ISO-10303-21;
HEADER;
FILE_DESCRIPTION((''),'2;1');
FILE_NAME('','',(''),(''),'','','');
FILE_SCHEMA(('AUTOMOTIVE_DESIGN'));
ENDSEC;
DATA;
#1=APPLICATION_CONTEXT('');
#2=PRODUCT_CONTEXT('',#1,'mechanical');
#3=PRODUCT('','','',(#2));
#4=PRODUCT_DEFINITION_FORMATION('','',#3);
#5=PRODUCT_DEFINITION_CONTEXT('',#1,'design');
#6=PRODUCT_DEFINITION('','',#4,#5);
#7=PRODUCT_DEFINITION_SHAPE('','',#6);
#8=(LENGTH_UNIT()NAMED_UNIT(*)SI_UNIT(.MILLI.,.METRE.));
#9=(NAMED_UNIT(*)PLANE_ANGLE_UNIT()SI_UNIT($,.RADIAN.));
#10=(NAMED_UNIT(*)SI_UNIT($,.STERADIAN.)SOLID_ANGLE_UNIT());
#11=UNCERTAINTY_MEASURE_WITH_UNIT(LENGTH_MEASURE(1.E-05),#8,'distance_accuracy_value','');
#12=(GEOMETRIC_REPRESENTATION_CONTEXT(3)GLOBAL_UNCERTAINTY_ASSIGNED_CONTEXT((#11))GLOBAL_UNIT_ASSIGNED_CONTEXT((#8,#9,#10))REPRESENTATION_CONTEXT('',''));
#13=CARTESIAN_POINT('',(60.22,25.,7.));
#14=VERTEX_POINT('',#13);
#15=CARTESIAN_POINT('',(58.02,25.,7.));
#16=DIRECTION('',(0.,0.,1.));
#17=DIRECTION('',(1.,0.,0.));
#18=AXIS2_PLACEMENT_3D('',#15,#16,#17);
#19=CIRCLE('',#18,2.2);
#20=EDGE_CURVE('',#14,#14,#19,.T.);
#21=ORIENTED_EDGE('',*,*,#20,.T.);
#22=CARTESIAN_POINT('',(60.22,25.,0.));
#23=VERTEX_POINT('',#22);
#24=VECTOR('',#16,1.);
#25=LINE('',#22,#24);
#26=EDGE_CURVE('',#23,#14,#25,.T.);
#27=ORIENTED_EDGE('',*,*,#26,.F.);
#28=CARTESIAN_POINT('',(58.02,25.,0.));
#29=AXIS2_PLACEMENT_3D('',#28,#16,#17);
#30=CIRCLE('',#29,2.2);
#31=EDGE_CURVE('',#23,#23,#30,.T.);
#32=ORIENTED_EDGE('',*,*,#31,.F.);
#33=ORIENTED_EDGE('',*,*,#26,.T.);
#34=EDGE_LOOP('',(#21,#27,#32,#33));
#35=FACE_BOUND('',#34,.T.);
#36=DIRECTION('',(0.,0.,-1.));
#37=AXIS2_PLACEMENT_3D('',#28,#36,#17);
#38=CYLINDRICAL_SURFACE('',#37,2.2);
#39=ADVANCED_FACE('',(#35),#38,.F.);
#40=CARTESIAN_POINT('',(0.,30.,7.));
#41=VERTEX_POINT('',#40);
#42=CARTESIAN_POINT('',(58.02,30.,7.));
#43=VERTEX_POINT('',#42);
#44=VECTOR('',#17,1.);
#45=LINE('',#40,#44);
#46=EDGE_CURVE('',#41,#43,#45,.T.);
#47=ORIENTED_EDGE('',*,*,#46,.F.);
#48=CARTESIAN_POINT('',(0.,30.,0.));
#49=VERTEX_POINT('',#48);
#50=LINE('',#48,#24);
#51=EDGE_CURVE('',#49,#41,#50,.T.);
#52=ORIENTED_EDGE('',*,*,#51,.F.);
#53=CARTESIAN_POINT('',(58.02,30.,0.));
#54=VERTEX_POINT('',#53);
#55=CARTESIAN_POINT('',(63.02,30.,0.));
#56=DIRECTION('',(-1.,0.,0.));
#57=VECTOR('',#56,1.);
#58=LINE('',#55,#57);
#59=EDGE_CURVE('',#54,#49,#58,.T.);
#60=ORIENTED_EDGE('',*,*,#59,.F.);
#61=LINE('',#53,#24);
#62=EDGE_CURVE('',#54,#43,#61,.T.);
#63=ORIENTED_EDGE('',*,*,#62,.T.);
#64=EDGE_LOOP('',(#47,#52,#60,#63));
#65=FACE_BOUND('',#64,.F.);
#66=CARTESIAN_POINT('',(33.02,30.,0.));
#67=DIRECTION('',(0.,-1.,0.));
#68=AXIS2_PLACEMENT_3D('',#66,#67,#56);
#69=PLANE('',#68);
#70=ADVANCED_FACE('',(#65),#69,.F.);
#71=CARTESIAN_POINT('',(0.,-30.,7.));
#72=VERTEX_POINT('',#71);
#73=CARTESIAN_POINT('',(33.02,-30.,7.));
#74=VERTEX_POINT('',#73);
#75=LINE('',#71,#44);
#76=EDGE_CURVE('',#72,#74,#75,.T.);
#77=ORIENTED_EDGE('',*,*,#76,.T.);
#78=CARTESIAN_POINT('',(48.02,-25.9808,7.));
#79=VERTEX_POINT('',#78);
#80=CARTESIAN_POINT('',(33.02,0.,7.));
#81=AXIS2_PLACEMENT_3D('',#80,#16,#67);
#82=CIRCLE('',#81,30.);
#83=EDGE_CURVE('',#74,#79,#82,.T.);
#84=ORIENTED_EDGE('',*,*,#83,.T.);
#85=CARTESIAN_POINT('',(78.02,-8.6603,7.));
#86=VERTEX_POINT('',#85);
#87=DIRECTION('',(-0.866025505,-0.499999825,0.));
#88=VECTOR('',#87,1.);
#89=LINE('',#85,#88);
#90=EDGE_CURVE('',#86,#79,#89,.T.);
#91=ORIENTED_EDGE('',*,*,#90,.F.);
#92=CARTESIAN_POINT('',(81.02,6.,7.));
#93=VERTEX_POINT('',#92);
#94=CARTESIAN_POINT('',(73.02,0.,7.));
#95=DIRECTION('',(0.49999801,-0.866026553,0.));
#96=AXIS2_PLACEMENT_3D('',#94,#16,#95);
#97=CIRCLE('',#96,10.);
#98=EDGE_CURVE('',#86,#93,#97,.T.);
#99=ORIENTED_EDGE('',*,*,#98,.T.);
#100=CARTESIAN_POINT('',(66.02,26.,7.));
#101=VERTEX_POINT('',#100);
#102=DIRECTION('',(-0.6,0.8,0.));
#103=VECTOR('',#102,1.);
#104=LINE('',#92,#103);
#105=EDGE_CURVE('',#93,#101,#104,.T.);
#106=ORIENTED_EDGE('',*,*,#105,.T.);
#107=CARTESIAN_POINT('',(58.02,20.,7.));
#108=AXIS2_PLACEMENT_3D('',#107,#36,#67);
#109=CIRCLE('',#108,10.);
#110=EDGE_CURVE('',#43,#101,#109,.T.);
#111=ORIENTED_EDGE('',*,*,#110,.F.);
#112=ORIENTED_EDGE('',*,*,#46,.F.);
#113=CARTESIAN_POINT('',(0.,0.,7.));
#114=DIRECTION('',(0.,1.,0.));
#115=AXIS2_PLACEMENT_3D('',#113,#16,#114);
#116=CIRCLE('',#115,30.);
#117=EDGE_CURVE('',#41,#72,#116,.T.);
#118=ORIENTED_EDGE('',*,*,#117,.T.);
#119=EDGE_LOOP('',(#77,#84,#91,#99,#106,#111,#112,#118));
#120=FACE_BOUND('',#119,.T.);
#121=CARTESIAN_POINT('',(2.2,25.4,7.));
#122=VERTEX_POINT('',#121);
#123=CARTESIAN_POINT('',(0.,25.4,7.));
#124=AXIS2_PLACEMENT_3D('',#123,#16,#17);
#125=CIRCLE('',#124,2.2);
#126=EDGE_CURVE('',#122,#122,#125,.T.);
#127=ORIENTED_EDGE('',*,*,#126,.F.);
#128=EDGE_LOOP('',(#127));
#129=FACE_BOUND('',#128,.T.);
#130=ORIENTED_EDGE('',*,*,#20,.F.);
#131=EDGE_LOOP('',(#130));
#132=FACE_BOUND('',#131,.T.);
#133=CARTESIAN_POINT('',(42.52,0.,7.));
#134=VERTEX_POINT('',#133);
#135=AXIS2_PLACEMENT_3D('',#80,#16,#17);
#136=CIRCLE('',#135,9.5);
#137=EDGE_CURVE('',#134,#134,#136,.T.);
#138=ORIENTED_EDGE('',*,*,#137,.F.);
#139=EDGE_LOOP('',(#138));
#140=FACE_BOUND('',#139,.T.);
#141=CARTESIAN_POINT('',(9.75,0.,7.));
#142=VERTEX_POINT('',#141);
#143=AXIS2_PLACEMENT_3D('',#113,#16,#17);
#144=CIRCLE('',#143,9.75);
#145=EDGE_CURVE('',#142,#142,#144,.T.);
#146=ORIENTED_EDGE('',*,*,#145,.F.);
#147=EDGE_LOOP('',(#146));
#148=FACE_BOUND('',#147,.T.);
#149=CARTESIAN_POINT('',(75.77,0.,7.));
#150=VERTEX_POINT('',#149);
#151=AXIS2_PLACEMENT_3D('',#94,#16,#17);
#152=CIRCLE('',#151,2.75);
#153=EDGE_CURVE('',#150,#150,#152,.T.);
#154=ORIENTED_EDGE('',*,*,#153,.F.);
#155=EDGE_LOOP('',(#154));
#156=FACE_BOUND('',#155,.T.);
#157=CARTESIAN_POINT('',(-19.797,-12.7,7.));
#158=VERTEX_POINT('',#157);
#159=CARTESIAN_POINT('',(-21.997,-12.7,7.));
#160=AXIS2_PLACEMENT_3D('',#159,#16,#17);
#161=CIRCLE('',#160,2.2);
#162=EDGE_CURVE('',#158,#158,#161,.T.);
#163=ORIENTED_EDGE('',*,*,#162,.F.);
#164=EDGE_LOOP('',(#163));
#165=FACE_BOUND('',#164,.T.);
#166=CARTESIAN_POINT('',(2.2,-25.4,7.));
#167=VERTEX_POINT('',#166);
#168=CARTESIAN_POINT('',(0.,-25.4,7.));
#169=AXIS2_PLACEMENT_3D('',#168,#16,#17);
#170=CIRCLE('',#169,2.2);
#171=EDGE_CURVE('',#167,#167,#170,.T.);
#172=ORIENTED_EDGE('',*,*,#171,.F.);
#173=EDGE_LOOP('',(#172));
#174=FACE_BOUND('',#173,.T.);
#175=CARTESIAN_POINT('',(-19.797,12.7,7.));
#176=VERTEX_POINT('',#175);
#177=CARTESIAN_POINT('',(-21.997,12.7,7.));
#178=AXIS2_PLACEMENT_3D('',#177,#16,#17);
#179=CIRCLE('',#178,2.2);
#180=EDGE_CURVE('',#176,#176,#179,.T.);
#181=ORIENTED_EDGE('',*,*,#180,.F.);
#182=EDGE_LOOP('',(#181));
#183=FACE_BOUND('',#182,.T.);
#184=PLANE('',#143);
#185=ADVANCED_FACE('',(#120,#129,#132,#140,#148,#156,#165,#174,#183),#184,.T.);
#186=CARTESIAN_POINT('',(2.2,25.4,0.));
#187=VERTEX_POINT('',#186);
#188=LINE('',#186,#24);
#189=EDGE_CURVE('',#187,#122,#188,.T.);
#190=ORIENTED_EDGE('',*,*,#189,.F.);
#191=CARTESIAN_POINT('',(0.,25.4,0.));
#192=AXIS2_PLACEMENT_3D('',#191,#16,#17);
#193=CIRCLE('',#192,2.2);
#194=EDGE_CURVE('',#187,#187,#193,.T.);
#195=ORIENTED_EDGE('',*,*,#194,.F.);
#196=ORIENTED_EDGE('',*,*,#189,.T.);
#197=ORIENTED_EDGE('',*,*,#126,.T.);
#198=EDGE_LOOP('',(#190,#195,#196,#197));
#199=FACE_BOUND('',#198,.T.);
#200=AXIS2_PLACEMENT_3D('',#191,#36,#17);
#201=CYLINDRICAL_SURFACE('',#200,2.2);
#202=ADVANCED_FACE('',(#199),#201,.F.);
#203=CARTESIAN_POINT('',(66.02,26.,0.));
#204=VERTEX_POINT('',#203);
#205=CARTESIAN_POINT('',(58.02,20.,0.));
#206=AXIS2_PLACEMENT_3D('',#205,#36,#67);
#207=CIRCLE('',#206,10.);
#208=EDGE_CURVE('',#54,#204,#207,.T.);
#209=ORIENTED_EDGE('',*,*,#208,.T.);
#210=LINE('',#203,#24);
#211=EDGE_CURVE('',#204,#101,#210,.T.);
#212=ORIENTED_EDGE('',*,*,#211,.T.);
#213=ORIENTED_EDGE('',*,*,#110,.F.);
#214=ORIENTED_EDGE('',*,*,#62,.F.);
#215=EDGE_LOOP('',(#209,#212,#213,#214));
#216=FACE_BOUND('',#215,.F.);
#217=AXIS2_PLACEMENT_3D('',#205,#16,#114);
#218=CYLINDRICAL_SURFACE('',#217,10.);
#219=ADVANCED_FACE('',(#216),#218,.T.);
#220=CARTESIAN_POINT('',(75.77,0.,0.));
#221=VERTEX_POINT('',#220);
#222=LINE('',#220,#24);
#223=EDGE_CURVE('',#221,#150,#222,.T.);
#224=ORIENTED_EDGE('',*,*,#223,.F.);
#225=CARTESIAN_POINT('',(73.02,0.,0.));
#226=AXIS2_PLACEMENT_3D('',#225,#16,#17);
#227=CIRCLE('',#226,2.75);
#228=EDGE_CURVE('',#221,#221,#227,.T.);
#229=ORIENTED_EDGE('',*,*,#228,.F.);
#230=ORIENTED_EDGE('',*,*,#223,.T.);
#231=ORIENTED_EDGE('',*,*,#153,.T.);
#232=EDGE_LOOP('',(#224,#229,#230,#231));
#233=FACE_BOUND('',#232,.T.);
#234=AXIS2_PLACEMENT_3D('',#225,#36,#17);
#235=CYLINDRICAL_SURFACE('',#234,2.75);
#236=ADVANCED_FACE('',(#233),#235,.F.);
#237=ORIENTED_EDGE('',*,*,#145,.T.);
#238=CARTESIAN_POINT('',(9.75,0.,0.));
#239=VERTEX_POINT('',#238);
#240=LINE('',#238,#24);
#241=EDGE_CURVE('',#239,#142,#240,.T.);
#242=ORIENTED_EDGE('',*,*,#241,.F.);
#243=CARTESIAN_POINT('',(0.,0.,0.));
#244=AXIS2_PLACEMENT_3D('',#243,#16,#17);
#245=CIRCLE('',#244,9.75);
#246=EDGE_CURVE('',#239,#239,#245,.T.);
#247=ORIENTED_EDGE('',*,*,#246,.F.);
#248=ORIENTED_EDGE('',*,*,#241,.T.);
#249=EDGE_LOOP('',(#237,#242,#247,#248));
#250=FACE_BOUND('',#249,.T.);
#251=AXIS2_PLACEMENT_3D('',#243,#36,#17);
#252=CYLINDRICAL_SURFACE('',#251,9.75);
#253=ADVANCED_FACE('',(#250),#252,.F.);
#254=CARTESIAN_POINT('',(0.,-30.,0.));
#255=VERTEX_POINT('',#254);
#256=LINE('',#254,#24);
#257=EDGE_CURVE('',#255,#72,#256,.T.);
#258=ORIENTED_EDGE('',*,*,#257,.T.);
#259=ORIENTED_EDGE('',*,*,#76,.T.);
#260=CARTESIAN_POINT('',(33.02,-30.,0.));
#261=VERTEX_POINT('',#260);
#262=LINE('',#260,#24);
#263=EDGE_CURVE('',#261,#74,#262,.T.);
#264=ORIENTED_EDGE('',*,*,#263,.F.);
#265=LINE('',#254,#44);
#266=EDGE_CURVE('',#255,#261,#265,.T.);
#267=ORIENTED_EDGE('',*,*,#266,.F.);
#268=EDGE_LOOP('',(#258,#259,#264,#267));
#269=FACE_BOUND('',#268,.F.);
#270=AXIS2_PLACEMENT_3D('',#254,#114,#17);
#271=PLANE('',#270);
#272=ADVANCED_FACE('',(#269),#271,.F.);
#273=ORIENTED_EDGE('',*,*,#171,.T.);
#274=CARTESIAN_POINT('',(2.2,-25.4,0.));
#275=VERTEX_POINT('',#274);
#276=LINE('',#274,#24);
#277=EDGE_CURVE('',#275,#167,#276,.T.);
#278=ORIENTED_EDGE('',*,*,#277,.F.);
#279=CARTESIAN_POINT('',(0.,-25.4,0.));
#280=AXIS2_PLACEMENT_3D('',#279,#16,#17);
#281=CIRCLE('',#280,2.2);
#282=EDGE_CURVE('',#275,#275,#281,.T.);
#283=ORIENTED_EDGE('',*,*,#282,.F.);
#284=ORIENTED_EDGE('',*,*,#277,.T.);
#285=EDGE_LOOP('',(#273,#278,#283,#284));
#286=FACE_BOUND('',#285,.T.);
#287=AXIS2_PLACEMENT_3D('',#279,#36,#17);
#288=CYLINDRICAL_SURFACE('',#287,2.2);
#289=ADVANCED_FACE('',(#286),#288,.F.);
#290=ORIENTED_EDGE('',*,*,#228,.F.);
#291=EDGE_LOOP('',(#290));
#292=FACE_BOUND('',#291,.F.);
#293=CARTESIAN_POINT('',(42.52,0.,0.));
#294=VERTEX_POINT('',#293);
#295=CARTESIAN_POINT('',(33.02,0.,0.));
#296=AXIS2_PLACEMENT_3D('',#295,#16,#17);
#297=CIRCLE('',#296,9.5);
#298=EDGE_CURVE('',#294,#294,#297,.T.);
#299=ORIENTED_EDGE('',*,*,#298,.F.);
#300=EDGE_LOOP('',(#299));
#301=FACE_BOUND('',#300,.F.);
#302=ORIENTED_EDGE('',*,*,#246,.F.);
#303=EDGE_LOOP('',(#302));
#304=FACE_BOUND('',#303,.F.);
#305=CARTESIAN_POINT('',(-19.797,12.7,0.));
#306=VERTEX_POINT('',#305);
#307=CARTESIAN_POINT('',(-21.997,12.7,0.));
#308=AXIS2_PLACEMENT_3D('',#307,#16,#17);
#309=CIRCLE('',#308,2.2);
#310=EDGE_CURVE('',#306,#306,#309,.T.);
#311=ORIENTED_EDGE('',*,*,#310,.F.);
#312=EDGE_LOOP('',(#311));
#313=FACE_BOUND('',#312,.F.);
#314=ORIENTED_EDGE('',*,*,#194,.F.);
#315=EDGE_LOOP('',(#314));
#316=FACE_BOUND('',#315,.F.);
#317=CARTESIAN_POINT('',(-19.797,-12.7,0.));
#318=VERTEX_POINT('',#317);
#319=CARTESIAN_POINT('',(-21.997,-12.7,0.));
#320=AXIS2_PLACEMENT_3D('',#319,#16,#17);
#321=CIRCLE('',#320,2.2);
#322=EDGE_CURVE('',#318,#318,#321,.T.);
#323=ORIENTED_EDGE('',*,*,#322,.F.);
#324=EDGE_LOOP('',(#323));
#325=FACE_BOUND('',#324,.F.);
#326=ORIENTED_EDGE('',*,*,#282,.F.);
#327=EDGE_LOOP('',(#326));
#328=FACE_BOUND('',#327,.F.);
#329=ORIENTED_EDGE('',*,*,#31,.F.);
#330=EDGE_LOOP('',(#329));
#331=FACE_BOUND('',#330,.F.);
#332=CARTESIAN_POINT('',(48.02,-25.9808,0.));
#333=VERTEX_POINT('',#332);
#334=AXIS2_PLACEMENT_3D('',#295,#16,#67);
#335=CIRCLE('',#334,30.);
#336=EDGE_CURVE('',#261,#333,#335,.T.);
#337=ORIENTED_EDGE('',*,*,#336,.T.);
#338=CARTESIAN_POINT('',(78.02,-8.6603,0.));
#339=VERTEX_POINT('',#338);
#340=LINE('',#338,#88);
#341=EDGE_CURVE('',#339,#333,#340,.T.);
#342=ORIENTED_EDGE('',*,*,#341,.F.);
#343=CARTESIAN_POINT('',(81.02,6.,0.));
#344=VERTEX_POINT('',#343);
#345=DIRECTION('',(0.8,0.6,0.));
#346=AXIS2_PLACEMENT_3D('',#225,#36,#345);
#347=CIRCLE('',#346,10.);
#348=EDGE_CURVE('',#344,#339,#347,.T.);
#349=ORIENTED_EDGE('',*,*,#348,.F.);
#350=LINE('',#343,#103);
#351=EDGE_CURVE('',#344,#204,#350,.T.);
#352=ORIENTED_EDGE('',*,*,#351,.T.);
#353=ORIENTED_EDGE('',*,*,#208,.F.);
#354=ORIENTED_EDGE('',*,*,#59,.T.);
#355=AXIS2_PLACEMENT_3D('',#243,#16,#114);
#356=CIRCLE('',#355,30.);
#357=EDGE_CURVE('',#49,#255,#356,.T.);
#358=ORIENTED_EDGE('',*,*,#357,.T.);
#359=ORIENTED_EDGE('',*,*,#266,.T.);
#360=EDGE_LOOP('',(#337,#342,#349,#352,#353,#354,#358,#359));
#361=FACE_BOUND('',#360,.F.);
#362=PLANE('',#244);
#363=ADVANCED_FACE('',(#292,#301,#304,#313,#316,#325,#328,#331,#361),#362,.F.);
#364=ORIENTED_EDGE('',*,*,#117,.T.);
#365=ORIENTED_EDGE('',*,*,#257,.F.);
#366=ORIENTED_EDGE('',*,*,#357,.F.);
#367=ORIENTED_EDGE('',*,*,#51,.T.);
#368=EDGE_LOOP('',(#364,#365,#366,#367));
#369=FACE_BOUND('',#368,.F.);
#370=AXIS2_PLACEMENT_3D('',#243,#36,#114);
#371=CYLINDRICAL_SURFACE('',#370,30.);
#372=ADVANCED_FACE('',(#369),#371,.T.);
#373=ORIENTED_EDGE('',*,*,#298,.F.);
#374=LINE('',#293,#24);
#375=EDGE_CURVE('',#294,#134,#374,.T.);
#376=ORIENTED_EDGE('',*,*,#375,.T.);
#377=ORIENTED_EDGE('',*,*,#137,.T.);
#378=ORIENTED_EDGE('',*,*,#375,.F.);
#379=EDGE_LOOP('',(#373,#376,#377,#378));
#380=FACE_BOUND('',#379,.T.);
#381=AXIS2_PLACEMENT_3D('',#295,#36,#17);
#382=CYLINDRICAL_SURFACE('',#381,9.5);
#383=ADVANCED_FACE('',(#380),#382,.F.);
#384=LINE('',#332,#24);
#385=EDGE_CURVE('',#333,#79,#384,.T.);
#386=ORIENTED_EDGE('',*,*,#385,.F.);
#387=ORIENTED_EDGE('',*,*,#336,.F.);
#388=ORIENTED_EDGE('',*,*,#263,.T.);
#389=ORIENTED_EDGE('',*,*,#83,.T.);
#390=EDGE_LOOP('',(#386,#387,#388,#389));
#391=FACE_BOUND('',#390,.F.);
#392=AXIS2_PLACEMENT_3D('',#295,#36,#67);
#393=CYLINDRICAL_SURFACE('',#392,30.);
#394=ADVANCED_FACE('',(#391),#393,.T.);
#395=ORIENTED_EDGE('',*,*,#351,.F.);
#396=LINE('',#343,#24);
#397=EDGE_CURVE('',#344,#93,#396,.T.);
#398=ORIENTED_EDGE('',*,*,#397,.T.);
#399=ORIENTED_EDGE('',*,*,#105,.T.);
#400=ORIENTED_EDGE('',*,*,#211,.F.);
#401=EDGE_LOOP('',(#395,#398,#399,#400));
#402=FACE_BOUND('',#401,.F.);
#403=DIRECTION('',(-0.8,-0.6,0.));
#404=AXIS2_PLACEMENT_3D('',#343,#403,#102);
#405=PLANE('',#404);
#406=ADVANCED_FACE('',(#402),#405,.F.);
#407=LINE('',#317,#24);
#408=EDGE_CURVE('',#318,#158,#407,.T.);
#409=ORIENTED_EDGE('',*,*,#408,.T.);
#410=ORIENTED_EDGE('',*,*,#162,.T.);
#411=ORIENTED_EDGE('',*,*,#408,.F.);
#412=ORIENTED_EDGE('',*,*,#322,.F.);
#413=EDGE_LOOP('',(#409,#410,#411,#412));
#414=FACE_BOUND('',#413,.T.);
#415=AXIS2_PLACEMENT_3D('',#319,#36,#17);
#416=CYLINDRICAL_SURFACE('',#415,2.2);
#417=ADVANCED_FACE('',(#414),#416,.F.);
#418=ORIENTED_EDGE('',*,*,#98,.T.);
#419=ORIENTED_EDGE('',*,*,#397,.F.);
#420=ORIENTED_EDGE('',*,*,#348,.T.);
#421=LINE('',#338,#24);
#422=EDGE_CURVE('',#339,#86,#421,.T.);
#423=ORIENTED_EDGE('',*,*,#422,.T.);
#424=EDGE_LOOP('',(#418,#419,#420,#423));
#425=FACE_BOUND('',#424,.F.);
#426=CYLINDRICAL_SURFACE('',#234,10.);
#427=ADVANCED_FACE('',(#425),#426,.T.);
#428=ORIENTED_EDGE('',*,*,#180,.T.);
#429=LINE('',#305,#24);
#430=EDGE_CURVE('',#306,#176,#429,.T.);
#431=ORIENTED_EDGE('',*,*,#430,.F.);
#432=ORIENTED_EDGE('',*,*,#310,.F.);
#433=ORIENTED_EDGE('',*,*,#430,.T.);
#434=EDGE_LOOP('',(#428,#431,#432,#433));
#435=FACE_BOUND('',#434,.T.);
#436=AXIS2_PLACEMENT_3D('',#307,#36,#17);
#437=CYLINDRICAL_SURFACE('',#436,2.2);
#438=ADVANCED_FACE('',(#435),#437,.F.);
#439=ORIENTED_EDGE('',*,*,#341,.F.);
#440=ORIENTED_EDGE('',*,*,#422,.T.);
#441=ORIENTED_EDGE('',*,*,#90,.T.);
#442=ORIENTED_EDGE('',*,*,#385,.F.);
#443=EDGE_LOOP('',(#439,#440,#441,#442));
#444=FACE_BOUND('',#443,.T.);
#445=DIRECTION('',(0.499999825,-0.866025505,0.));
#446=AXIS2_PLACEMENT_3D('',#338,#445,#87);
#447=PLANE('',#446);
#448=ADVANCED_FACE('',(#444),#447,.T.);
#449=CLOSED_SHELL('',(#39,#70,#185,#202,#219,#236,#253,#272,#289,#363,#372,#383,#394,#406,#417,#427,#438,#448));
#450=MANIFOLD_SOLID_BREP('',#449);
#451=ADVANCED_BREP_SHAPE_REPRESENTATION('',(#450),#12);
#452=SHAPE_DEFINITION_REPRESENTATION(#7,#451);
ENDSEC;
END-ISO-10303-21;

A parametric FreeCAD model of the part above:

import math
import FreeCAD as App
import Part
import Sketcher
from FreeCAD import Vector
Q = App.Units.Quantity


def edges_at(feature, points):
    """Names of the edges that pass closest to the given points."""
    edges = feature.Shape.Edges
    near = lambda p: min(range(len(edges)), key=lambda i: edges[i].distToShape(Part.Vertex(*p))[0])
    return sorted({f"Edge{near(p) + 1}" for p in points})

doc = App.newDocument("Part")
body = doc.addObject("PartDesign::Body", "Body")

sketch1 = body.newObject("Sketcher::SketchObject", "Sketch")
sketch1.AttachmentSupport = (doc.getObject("XY_Plane"), [""])
sketch1.MapMode = "FlatFace"
sketch1.addGeometry(Part.ArcOfCircle(Part.Circle(Vector(0, 0, 0), Vector(0, 0, 1), 30), math.radians(90), math.radians(270)), False)
sketch1.addGeometry(Part.LineSegment(Vector(0, -30, 0), Vector(33, -30, 0)), False)
sketch1.addGeometry(Part.ArcOfCircle(Part.Circle(Vector(33, 0, 0), Vector(0, 0, 1), 30), math.radians(-90), math.radians(-60)), False)
sketch1.addGeometry(Part.LineSegment(Vector(48, -26, 0), Vector(78, -8.7, 0)), False)
sketch1.addGeometry(Part.ArcOfCircle(Part.Circle(Vector(73, 0, 0), Vector(0, 0, 1), 10), math.radians(-60), math.radians(37)), False)
sketch1.addGeometry(Part.LineSegment(Vector(81, 6, 0), Vector(63, 30, 0)), False)
sketch1.addGeometry(Part.LineSegment(Vector(63, 30, 0), Vector(0, 30, 0)), False)
sketch1.addGeometry(Part.Circle(Vector(0, -25.4, 0), Vector(0, 0, 1), 2.2), False)
sketch1.addGeometry(Part.Circle(Vector(-22, -12.7, 0), Vector(0, 0, 1), 2.2), False)
sketch1.addGeometry(Part.Circle(Vector(-22, 12.7, 0), Vector(0, 0, 1), 2.2), False)
sketch1.addGeometry(Part.Circle(Vector(0, 0, 0), Vector(0, 0, 1), 9.8), False)
sketch1.addGeometry(Part.Circle(Vector(0, 25.4, 0), Vector(0, 0, 1), 2.2), False)
sketch1.addGeometry(Part.Circle(Vector(33, 0, 0), Vector(0, 0, 1), 9.5), False)
sketch1.addGeometry(Part.Circle(Vector(58, 25, 0), Vector(0, 0, 1), 2.2), False)
sketch1.addGeometry(Part.Circle(Vector(73, 0, 0), Vector(0, 0, 1), 2.8), False)
sketch1.addConstraint(Sketcher.Constraint("Tangent", 0, 2, 1, 1))
sketch1.addConstraint(Sketcher.Constraint("Tangent", 1, 2, 2, 1))
sketch1.addConstraint(Sketcher.Constraint("Tangent", 2, 2, 3, 1))
sketch1.addConstraint(Sketcher.Constraint("Tangent", 3, 2, 4, 1))
sketch1.addConstraint(Sketcher.Constraint("Tangent", 4, 2, 5, 1))
sketch1.addConstraint(Sketcher.Constraint("Coincident", 5, 2, 6, 1))
sketch1.addConstraint(Sketcher.Constraint("Tangent", 6, 2, 0, 1))
sketch1.addConstraint(Sketcher.Constraint("Horizontal", 1))
sketch1.addConstraint(Sketcher.Constraint("Horizontal", 6))
sketch1.addConstraint(Sketcher.Constraint("Coincident", 0, 3, -1, 1))
sketch1.addConstraint(Sketcher.Constraint("Coincident", 10, 3, -1, 1))
sketch1.addConstraint(Sketcher.Constraint("Coincident", 12, 3, 2, 3))
sketch1.addConstraint(Sketcher.Constraint("Coincident", 14, 3, 4, 3))
sketch1.addConstraint(Sketcher.Constraint("Equal", 0, 2))
sketch1.addConstraint(Sketcher.Constraint("Equal", 7, 8))
sketch1.addConstraint(Sketcher.Constraint("Equal", 8, 9))
sketch1.addConstraint(Sketcher.Constraint("Equal", 9, 11))
sketch1.addConstraint(Sketcher.Constraint("Equal", 11, 13))
sketch1.addConstraint(Sketcher.Constraint("Symmetric", 7, 3, 11, 3, -1, 1))
sketch1.addConstraint(Sketcher.Constraint("Symmetric", 8, 3, 9, 3, -1))
sketch1.addConstraint(Sketcher.Constraint("PointOnObject", 4, 3, -1))
sketch1.addConstraint(Sketcher.Constraint("PointOnObject", 7, 3, -2))
sketch1.addConstraint(Sketcher.Constraint("Diameter", 12, Q("19 mm")))
sketch1.addConstraint(Sketcher.Constraint("Radius", 0, Q("30 mm")))
sketch1.addConstraint(Sketcher.Constraint("Radius", 4, Q("10 mm")))
sketch1.addConstraint(Sketcher.Constraint("Diameter", 7, Q("4.4 mm")))
sketch1.addConstraint(Sketcher.Constraint("Diameter", 10, Q("19.5 mm")))
sketch1.addConstraint(Sketcher.Constraint("Diameter", 14, Q("5.5 mm")))
sketch1.addConstraint(Sketcher.Constraint("Angle", 3, Q("30 deg")))
sketch1.addConstraint(Sketcher.Constraint("Distance", 5, Q("30 mm")))
sketch1.addConstraint(Sketcher.Constraint("DistanceX", 13, 3, 3, 2, Q("20 mm")))
sketch1.addConstraint(Sketcher.Constraint("DistanceY", 4, 2, 13, 3, Q("19 mm")))
sketch1.addConstraint(Sketcher.Constraint("DistanceX", 1, 1, 1, 2, Q("33.02 mm")))
sketch1.addConstraint(Sketcher.Constraint("DistanceY", 7, 3, -1, 1, Q("25.4 mm")))
sketch1.addConstraint(Sketcher.Constraint("DistanceY", 8, 3, 9, 3, Q("25.4 mm")))
sketch1.addConstraint(Sketcher.Constraint("DistanceX", 8, 3, -1, 1, Q("21.997 mm")))
pad1 = body.newObject("PartDesign::Pad", "Pad")
pad1.Profile = sketch1
pad1.Length = 7
doc.recompute()

fillet = body.newObject("PartDesign::Fillet", "Fillet")
fillet.Base = (pad1, edges_at(pad1, [(63.02, 30, 3.5)]))
fillet.Radius = 10

doc.recompute()
